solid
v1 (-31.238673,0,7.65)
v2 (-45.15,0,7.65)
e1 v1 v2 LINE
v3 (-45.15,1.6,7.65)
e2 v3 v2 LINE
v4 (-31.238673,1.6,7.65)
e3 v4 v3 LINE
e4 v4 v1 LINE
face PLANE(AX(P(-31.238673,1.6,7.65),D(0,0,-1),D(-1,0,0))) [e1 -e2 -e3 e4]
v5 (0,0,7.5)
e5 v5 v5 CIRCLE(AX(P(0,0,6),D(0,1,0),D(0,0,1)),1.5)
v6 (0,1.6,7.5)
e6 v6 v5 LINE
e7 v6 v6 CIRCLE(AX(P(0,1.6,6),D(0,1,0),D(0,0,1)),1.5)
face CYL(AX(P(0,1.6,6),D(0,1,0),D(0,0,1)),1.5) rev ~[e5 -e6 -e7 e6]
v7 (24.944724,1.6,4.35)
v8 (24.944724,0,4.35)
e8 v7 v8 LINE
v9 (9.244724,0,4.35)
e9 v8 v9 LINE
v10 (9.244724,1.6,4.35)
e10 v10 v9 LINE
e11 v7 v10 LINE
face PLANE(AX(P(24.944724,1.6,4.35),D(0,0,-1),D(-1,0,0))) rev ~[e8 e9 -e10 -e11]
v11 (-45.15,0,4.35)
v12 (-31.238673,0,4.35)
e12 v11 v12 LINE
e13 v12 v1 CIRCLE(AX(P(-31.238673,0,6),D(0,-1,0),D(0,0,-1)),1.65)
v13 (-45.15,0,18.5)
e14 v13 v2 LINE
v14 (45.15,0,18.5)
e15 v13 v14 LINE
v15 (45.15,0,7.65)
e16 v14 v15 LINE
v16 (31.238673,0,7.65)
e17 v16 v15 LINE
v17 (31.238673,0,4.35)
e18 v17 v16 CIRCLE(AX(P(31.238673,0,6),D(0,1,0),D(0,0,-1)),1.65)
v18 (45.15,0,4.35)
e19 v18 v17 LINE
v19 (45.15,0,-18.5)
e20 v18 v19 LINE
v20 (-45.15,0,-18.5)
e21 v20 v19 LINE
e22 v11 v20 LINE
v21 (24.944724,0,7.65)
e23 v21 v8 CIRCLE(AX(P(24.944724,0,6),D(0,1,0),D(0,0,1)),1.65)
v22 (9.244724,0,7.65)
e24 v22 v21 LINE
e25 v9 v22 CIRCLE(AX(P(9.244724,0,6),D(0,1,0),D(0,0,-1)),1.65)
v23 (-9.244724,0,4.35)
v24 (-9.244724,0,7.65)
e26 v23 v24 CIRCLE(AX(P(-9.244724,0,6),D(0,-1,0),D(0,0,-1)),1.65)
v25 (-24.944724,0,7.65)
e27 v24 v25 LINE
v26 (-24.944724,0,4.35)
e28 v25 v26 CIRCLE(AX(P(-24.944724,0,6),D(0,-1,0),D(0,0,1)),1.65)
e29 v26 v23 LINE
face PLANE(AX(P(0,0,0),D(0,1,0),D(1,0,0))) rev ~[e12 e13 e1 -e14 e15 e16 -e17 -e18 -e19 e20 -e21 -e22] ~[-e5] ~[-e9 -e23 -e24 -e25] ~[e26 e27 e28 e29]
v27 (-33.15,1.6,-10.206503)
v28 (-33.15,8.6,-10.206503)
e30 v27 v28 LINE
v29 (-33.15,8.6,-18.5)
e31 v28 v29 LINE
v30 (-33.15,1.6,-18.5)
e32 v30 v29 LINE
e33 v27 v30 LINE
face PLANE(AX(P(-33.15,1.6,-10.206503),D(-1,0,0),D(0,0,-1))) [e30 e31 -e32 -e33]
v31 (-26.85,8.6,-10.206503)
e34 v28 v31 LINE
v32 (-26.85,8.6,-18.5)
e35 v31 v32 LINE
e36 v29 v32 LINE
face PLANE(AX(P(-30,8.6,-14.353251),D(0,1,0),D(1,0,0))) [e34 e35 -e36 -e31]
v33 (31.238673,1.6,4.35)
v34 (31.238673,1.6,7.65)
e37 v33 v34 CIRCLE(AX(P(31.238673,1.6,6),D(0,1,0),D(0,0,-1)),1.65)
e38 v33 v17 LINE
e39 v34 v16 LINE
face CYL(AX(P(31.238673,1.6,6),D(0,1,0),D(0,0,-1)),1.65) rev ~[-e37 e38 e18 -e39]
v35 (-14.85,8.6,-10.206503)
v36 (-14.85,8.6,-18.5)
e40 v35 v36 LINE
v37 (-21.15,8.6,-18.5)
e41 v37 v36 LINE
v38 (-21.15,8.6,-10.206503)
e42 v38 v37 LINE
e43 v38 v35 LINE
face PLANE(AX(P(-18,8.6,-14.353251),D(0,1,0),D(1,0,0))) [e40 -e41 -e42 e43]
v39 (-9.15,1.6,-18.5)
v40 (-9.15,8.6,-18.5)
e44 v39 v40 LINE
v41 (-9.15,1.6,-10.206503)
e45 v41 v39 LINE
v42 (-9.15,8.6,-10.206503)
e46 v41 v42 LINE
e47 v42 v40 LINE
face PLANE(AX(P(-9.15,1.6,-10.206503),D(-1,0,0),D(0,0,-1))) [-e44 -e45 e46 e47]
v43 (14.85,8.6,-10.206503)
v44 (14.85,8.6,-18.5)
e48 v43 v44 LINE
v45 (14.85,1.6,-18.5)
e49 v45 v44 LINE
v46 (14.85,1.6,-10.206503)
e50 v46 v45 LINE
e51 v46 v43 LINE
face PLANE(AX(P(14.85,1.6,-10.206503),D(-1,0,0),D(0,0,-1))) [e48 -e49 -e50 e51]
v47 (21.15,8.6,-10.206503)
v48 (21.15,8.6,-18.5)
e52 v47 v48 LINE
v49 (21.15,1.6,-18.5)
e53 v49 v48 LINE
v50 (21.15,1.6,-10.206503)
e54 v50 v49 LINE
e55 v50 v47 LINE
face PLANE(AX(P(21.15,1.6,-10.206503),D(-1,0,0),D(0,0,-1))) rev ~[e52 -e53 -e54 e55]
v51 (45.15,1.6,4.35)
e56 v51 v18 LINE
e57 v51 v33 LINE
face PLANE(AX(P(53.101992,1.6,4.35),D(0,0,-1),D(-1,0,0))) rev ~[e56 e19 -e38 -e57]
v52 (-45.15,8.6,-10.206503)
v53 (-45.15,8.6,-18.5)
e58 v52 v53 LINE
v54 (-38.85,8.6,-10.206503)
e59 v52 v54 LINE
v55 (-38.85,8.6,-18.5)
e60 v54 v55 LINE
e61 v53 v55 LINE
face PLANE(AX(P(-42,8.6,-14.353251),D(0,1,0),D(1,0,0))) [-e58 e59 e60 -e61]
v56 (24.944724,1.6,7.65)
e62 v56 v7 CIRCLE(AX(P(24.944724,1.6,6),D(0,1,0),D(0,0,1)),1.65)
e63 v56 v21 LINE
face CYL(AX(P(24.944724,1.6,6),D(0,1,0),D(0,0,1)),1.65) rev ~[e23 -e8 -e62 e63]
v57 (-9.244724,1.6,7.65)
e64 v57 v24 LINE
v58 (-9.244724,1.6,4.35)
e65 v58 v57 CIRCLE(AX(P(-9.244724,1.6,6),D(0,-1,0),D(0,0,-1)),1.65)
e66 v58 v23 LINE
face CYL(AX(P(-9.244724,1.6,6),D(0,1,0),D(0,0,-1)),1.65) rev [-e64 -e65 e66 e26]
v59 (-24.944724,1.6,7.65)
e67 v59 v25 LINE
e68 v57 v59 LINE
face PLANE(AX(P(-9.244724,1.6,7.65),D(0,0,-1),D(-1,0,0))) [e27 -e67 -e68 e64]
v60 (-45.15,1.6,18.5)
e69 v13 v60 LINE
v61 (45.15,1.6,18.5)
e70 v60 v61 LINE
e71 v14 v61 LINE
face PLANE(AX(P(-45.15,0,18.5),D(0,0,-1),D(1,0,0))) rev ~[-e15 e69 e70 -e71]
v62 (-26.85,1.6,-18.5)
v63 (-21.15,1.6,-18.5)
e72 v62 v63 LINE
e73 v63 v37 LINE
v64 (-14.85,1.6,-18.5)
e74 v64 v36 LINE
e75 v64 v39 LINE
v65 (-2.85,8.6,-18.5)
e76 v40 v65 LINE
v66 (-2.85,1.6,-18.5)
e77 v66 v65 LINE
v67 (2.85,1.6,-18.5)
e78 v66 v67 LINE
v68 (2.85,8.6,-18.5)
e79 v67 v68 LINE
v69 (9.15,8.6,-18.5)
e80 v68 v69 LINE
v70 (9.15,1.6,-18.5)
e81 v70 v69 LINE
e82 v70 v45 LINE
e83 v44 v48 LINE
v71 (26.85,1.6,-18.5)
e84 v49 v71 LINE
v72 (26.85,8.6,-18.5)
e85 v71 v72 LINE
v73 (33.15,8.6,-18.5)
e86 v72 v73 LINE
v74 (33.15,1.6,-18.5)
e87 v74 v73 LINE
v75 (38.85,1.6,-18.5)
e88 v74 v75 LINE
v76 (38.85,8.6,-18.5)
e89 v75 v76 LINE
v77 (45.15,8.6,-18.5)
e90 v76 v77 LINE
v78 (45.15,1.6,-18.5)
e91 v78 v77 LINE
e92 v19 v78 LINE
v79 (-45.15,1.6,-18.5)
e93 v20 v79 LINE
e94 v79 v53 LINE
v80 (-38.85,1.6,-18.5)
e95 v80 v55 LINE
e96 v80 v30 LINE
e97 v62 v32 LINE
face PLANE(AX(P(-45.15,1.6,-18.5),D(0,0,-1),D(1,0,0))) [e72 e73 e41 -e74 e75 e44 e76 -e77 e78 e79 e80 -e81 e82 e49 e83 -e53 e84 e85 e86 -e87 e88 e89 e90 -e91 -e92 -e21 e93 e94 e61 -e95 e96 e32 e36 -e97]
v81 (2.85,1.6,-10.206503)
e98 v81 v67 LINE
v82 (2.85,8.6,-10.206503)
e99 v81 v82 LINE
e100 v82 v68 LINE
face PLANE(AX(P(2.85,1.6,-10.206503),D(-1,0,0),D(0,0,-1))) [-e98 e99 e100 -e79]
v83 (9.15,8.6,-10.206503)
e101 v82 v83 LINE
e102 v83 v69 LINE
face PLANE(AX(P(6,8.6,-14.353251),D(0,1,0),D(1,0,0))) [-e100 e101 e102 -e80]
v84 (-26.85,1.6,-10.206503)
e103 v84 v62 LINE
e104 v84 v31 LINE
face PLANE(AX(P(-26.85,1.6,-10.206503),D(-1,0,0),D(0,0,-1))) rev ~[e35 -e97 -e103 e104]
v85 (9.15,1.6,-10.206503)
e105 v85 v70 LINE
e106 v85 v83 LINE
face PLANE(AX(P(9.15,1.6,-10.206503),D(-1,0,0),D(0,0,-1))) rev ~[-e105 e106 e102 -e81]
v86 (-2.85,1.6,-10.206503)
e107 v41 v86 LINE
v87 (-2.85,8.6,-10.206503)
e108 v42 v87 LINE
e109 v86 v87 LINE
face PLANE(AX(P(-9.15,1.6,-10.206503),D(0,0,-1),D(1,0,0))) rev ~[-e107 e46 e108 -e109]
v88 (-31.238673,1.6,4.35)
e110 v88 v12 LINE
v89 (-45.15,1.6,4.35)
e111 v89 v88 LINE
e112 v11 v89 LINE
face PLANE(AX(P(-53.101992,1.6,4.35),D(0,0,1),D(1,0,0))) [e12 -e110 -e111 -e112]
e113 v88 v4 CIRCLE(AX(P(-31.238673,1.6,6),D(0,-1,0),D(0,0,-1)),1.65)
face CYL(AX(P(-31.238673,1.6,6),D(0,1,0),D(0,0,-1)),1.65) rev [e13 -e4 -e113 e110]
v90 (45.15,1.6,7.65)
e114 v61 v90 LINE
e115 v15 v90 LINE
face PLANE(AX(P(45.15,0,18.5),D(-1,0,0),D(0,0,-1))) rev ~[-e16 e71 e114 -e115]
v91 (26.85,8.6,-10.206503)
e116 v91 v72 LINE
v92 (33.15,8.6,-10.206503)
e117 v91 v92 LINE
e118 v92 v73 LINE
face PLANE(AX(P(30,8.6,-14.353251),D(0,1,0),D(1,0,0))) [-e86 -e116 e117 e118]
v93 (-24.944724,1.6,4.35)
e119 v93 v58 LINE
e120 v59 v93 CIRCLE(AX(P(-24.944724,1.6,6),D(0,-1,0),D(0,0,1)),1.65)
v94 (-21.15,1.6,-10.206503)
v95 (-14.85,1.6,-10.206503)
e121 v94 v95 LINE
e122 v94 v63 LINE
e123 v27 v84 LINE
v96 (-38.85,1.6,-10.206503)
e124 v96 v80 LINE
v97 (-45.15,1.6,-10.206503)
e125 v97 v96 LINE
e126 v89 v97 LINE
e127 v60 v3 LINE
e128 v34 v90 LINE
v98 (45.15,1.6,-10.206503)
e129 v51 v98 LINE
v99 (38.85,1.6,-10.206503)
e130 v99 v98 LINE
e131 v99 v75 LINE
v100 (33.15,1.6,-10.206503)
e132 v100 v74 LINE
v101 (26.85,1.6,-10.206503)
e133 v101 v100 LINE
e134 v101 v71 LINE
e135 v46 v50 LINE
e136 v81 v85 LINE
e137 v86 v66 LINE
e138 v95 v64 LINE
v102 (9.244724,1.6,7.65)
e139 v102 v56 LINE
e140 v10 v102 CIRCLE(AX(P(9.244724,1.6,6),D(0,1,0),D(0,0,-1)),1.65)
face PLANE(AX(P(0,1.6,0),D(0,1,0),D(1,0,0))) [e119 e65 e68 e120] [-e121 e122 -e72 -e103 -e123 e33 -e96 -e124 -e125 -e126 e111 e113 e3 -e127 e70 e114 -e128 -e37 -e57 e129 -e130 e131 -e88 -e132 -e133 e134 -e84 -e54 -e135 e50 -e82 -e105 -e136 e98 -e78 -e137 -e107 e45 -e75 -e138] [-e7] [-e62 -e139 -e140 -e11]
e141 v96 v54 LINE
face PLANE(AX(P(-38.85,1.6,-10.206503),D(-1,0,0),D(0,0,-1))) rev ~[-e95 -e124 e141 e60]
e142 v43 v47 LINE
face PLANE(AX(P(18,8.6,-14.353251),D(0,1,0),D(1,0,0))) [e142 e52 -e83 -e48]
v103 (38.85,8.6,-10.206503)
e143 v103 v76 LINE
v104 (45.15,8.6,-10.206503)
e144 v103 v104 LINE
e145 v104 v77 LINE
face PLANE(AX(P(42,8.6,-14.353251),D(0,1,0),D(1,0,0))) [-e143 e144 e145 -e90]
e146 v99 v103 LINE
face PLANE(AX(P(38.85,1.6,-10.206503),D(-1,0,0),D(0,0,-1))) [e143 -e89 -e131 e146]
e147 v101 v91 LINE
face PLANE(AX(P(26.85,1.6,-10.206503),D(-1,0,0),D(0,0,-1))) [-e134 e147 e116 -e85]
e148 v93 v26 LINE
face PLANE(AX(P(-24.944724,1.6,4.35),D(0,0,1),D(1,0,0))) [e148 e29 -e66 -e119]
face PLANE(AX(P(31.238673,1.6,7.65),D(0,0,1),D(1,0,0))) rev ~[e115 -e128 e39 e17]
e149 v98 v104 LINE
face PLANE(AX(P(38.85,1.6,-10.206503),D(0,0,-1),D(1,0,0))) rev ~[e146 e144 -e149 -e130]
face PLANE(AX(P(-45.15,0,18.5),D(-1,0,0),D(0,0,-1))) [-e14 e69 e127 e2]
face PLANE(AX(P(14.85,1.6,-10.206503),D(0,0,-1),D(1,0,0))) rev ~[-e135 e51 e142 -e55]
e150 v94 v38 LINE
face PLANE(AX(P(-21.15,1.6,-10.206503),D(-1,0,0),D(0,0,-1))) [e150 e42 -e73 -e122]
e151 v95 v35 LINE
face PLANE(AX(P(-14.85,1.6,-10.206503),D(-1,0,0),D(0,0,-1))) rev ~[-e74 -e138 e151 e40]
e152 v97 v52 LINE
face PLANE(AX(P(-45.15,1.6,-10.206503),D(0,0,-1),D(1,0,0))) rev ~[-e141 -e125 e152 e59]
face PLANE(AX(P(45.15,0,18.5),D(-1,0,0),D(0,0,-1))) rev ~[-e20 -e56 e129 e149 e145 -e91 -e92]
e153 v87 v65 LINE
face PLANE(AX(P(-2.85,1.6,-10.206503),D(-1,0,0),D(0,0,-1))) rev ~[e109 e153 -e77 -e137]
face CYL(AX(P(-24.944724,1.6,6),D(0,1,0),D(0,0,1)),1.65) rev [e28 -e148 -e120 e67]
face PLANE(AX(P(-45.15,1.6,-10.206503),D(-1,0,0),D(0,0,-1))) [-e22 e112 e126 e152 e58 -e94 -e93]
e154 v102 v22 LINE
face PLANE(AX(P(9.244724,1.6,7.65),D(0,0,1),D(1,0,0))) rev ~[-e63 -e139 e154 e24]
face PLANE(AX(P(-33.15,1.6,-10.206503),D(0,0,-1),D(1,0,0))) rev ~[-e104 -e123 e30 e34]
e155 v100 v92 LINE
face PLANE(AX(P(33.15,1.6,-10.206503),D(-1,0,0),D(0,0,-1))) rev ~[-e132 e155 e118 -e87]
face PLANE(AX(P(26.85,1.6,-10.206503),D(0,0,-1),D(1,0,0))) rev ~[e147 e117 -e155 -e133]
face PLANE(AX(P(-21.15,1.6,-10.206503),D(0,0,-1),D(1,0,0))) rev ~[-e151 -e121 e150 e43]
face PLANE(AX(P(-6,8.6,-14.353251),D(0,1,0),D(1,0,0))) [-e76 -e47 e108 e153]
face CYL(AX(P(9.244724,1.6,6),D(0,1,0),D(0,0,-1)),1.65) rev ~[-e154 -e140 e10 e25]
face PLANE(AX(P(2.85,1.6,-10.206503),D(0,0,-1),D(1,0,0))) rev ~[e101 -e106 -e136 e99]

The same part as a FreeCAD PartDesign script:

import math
import FreeCAD as App
import Part
import Sketcher

V = App.Vector

doc = App.newDocument("Part")
body = doc.addObject("PartDesign::Body", "Body")

sketch1 = body.newObject("Sketcher::SketchObject", "Sketch")
sketch1.AttachmentSupport = (doc.getObject("XZ_Plane"), [""])
sketch1.MapMode = "FlatFace"
sketch1.addGeometry([
    Part.LineSegment(V(-45, -18, 0), V(-45, 18, 0)),
    Part.LineSegment(V(-45, 18, 0), V(45, 18, 0)),
    Part.LineSegment(V(45, 18, 0), V(45, -18, 0)),
    Part.LineSegment(V(45, -18, 0), V(-45, -18, 0)),
], False)
sketch1.addConstraint([
    Sketcher.Constraint("Coincident", 0, 2, 1, 1),
    Sketcher.Constraint("Coincident", 1, 2, 2, 1),
    Sketcher.Constraint("Coincident", 2, 2, 3, 1),
    Sketcher.Constraint("Coincident", 3, 2, 0, 1),
    Sketcher.Constraint("Vertical", 0),
    Sketcher.Constraint("Horizontal", 1),
    Sketcher.Constraint("Vertical", 2),
    Sketcher.Constraint("Horizontal", 3),
    Sketcher.Constraint("Symmetric", 0, 2, 2, 2, -1, 1),
    Sketcher.Constraint("DistanceY", 0, 1, 0, 2, 37.0),
    Sketcher.Constraint("DistanceX", 1, 1, 1, 2, 90.3),
])
pad1 = body.newObject("PartDesign::Pad", "Pad")
pad1.Profile = sketch1
pad1.Length = 1.6
pad1.Reversed = True

sketch2 = body.newObject("Sketcher::SketchObject", "Sketch001")
sketch2.AttachmentSupport = (doc.getObject("XZ_Plane"), [""])
sketch2.MapMode = "FlatFace"
sketch2.AttachmentOffset = App.Placement(V(0, 0, -1.6), App.Rotation())
sketch2.addGeometry([
    Part.Circle(V(0, 6, 0), V(0, 0, 1), 1.5),
    Part.LineSegment(V(-53.1, 7.7, 0), V(-31.2, 7.7, 0)),
    Part.ArcOfCircle(Part.Circle(V(-31.2, 6, 0), V(0, 0, 1), 1.6), math.radians(-90), math.radians(90)),
    Part.LineSegment(V(-31.2, 4.3, 0), V(-53.1, 4.3, 0)),
    Part.ArcOfCircle(Part.Circle(V(-53.1, 6, 0), V(0, 0, 1), 1.6), math.radians(90), math.radians(270)),
    Part.LineSegment(V(-9.2, 4.3, 0), V(-24.9, 4.3, 0)),
    Part.ArcOfCircle(Part.Circle(V(-24.9, 6, 0), V(0, 0, 1), 1.6), math.radians(90), math.radians(270)),
    Part.LineSegment(V(-24.9, 7.7, 0), V(-9.2, 7.7, 0)),
    Part.ArcOfCircle(Part.Circle(V(-9.2, 6, 0), V(0, 0, 1), 1.6), math.radians(-90), math.radians(90)),
    Part.LineSegment(V(31.2, 7.7, 0), V(53.1, 7.7, 0)),
    Part.ArcOfCircle(Part.Circle(V(53.1, 6, 0), V(0, 0, 1), 1.6), math.radians(-90), math.radians(90)),
    Part.LineSegment(V(53.1, 4.3, 0), V(31.2, 4.3, 0)),
    Part.ArcOfCircle(Part.Circle(V(31.2, 6, 0), V(0, 0, 1), 1.6), math.radians(90), math.radians(270)),
    Part.LineSegment(V(24.9, 4.3, 0), V(9.2, 4.3, 0)),
    Part.ArcOfCircle(Part.Circle(V(9.2, 6, 0), V(0, 0, 1), 1.6), math.radians(90), math.radians(270)),
    Part.LineSegment(V(9.2, 7.7, 0), V(24.9, 7.7, 0)),
    Part.ArcOfCircle(Part.Circle(V(24.9, 6, 0), V(0, 0, 1), 1.6), math.radians(-90), math.radians(90)),
], False)
sketch2.addConstraint([
    Sketcher.Constraint("Tangent", 1, 2, 2, 2),
    Sketcher.Constraint("Tangent", 2, 1, 3, 1),
    Sketcher.Constraint("Tangent", 3, 2, 4, 2),
    Sketcher.Constraint("Tangent", 4, 1, 1, 1),
    Sketcher.Constraint("Tangent", 5, 2, 6, 2),
    Sketcher.Constraint("Tangent", 6, 1, 7, 1),
    Sketcher.Constraint("Tangent", 7, 2, 8, 2),
    Sketcher.Constraint("Tangent", 8, 1, 5, 1),
    Sketcher.Constraint("Tangent", 9, 2, 10, 2),
    Sketcher.Constraint("Tangent", 10, 1, 11, 1),
    Sketcher.Constraint("Tangent", 11, 2, 12, 2),
    Sketcher.Constraint("Tangent", 12, 1, 9, 1),
    Sketcher.Constraint("Tangent", 13, 2, 14, 2),
    Sketcher.Constraint("Tangent", 14, 1, 15, 1),
    Sketcher.Constraint("Tangent", 15, 2, 16, 2),
    Sketcher.Constraint("Tangent", 16, 1, 13, 1),
    Sketcher.Constraint("Horizontal", 1),
    Sketcher.Constraint("Horizontal", 3),
    Sketcher.Constraint("Horizontal", 5),
    Sketcher.Constraint("Horizontal", 7),
    Sketcher.Constraint("Horizontal", 9),
    Sketcher.Constraint("Horizontal", 11),
    Sketcher.Constraint("Horizontal", 13),
    Sketcher.Constraint("Horizontal", 15),
    Sketcher.Constraint("Equal", 4, 6),
    Sketcher.Constraint("Equal", 8, 10),
    Sketcher.Constraint("Equal", 12, 14),
    Sketcher.Constraint("Symmetric", 4, 3, 10, 3, -2),
    Sketcher.Constraint("Symmetric", 8, 3, 14, 3, -2),
    Sketcher.Constraint("PointOnObject", 0, 3, -2),
    Sketcher.Constraint("Horizontal", 0, 3, 2, 3),
    Sketcher.Constraint("Horizontal", 4, 3, 6, 3),
    Sketcher.Constraint("Equal", 3, 9),
    Sketcher.Constraint("Equal", 7, 13),
    Sketcher.Constraint("Diameter", 0, 3.0),
    Sketcher.Constraint("Radius", 2, 1.65),
    Sketcher.Constraint("DistanceX", 5, 2, 5, 1, 15.7),
    Sketcher.Constraint("DistanceY", -1, 1, 0, 3, 6.0),
    Sketcher.Constraint("DistanceX", 1, 1, 1, 2, 21.86332),
    Sketcher.Constraint("DistanceX", 2, 3, 6, 3, 6.293948),
    Sketcher.Constraint("DistanceX", 8, 3, 14, 3, 18.489448),
])
pocket1 = body.newObject("PartDesign::Pocket", "Pocket")
pocket1.Profile = sketch2
pocket1.Length = 1.6
pocket1.Reversed = True

sketch3 = body.newObject("Sketcher::SketchObject", "Sketch002")
sketch3.AttachmentSupport = (doc.getObject("XZ_Plane"), [""])
sketch3.MapMode = "FlatFace"
sketch3.AttachmentOffset = App.Placement(V(0, 0, -1.6), App.Rotation())
sketch3.addGeometry([
    Part.LineSegment(V(-33, -18, 0), V(-33, -10, 0)),
    Part.LineSegment(V(-33, -10, 0), V(-27, -10, 0)),
    Part.LineSegment(V(-27, -10, 0), V(-27, -18, 0)),
    Part.LineSegment(V(-27, -18, 0), V(-33, -18, 0)),
    Part.LineSegment(V(-45, -18, 0), V(-45, -10, 0)),
    Part.LineSegment(V(-45, -10, 0), V(-39, -10, 0)),
    Part.LineSegment(V(-39, -10, 0), V(-39, -18, 0)),
    Part.LineSegment(V(-39, -18, 0), V(-45, -18, 0)),
    Part.LineSegment(V(-21, -18, 0), V(-21, -10, 0)),
    Part.LineSegment(V(-21, -10, 0), V(-15, -10, 0)),
    Part.LineSegment(V(-15, -10, 0), V(-15, -18, 0)),
    Part.LineSegment(V(-15, -18, 0), V(-21, -18, 0)),
    Part.LineSegment(V(-9, -18, 0), V(-9, -10, 0)),
    Part.LineSegment(V(-9, -10, 0), V(-3, -10, 0)),
    Part.LineSegment(V(-3, -10, 0), V(-3, -18, 0)),
    Part.LineSegment(V(-3, -18, 0), V(-9, -18, 0)),
    Part.LineSegment(V(3, -18, 0), V(3, -10, 0)),
    Part.LineSegment(V(3, -10, 0), V(9, -10, 0)),
    Part.LineSegment(V(9, -10, 0), V(9, -18, 0)),
    Part.LineSegment(V(9, -18, 0), V(3, -18, 0)),
    Part.LineSegment(V(15, -18, 0), V(15, -10, 0)),
    Part.LineSegment(V(15, -10, 0), V(21, -10, 0)),
    Part.LineSegment(V(21, -10, 0), V(21, -18, 0)),
    Part.LineSegment(V(21, -18, 0), V(15, -18, 0)),
    Part.LineSegment(V(27, -18, 0), V(27, -10, 0)),
    Part.LineSegment(V(27, -10, 0), V(33, -10, 0)),
    Part.LineSegment(V(33, -10, 0), V(33, -18, 0)),
    Part.LineSegment(V(33, -18, 0), V(27, -18, 0)),
    Part.LineSegment(V(39, -18, 0), V(39, -10, 0)),
    Part.LineSegment(V(39, -10, 0), V(45, -10, 0)),
    Part.LineSegment(V(45, -10, 0), V(45, -18, 0)),
    Part.LineSegment(V(45, -18, 0), V(39, -18, 0)),
], False)
sketch3.addConstraint([
    Sketcher.Constraint("Coincident", 0, 2, 1, 1),
    Sketcher.Constraint("Coincident", 1, 2, 2, 1),
    Sketcher.Constraint("Coincident", 2, 2, 3, 1),
    Sketcher.Constraint("Coincident", 3, 2, 0, 1),
    Sketcher.Constraint("Coincident", 4, 2, 5, 1),
    Sketcher.Constraint("Coincident", 5, 2, 6, 1),
    Sketcher.Constraint("Coincident", 6, 2, 7, 1),
    Sketcher.Constraint("Coincident", 7, 2, 4, 1),
    Sketcher.Constraint("Coincident", 8, 2, 9, 1),
    Sketcher.Constraint("Coincident", 9, 2, 10, 1),
    Sketcher.Constraint("Coincident", 10, 2, 11, 1),
    Sketcher.Constraint("Coincident", 11, 2, 8, 1),
    Sketcher.Constraint("Coincident", 12, 2, 13, 1),
    Sketcher.Constraint("Coincident", 13, 2, 14, 1),
    Sketcher.Constraint("Coincident", 14, 2, 15, 1),
    Sketcher.Constraint("Coincident", 15, 2, 12, 1),
    Sketcher.Constraint("Coincident", 16, 2, 17, 1),
    Sketcher.Constraint("Coincident", 17, 2, 18, 1),
    Sketcher.Constraint("Coincident", 18, 2, 19, 1),
    Sketcher.Constraint("Coincident", 19, 2, 16, 1),
    Sketcher.Constraint("Coincident", 20, 2, 21, 1),
    Sketcher.Constraint("Coincident", 21, 2, 22, 1),
    Sketcher.Constraint("Coincident", 22, 2, 23, 1),
    Sketcher.Constraint("Coincident", 23, 2, 20, 1),
    Sketcher.Constraint("Coincident", 24, 2, 25, 1),
    Sketcher.Constraint("Coincident", 25, 2, 26, 1),
    Sketcher.Constraint("Coincident", 26, 2, 27, 1),
    Sketcher.Constraint("Coincident", 27, 2, 24, 1),
    Sketcher.Constraint("Coincident", 28, 2, 29, 1),
    Sketcher.Constraint("Coincident", 29, 2, 30, 1),
    Sketcher.Constraint("Coincident", 30, 2, 31, 1),
    Sketcher.Constraint("Coincident", 31, 2, 28, 1),
    Sketcher.Constraint("Vertical", 0),
    Sketcher.Constraint("Horizontal", 1),
    Sketcher.Constraint("Vertical", 2),
    Sketcher.Constraint("Horizontal", 3),
    Sketcher.Constraint("Vertical", 4),
    Sketcher.Constraint("Horizontal", 5),
    Sketcher.Constraint("Vertical", 6),
    Sketcher.Constraint("Horizontal", 7),
    Sketcher.Constraint("Vertical", 8),
    Sketcher.Constraint("Horizontal", 9),
    Sketcher.Constraint("Vertical", 10),
    Sketcher.Constraint("Horizontal", 11),
    Sketcher.Constraint("Vertical", 12),
    Sketcher.Constraint("Horizontal", 13),
    Sketcher.Constraint("Vertical", 14),
    Sketcher.Constraint("Horizontal", 15),
    Sketcher.Constraint("Vertical", 16),
    Sketcher.Constraint("Horizontal", 17),
    Sketcher.Constraint("Vertical", 18),
    Sketcher.Constraint("Horizontal", 19),
    Sketcher.Constraint("Vertical", 20),
    Sketcher.Constraint("Horizontal", 21),
    Sketcher.Constraint("Vertical", 22),
    Sketcher.Constraint("Horizontal", 23),
    Sketcher.Constraint("Vertical", 24),
    Sketcher.Constraint("Horizontal", 25),
    Sketcher.Constraint("Vertical", 26),
    Sketcher.Constraint("Horizontal", 27),
    Sketcher.Constraint("Vertical", 28),
    Sketcher.Constraint("Horizontal", 29),
    Sketcher.Constraint("Vertical", 30),
    Sketcher.Constraint("Horizontal", 31),
    Sketcher.Constraint("Symmetric", 13, 2, 16, 2, -2),
    Sketcher.Constraint("Symmetric", 15, 2, 18, 2, -2),
    Sketcher.Constraint("Symmetric", 9, 2, 20, 2, -2),
    Sketcher.Constraint("Symmetric", 11, 2, 22, 2, -2),
    Sketcher.Constraint("Symmetric", 1, 2, 24, 2, -2),
    Sketcher.Constraint("Symmetric", 3, 2, 26, 2, -2),
    Sketcher.Constraint("Symmetric", 5, 2, 28, 2, -2),
    Sketcher.Constraint("Symmetric", 7, 2, 30, 2, -2),
    Sketcher.Constraint("Horizontal", 1, 2, 4, 2),
    Sketcher.Constraint("Horizontal", 3, 2, 6, 2),
    Sketcher.Constraint("Horizontal", 5, 2, 8, 2),
    Sketcher.Constraint("Horizontal", 7, 2, 10, 2),
    Sketcher.Constraint("Horizontal", 9, 2, 12, 2),
    Sketcher.Constraint("Horizontal", 11, 2, 14, 2),
    Sketcher.Constraint("Equal", 3, 5),
    Sketcher.Constraint("Equal", 7, 9),
    Sketcher.Constraint("Equal", 11, 13),
    Sketcher.Constraint("DistanceX", 1, 1, 1, 2, 6.3),
    Sketcher.Constraint("DistanceX", 4, 2, 0, 2, 12.0),
    Sketcher.Constraint("DistanceX", 0, 2, 8, 2, 12.0),
    Sketcher.Constraint("DistanceX", 8, 2, 12, 2, 12.0),
    Sketcher.Constraint("DistanceX", 12, 2, 16, 2, 12.0),
    Sketcher.Constraint("DistanceY", 2, 2, -1, 1, 18.5),
    Sketcher.Constraint("DistanceY", 0, 1, 0, 2, 8.293497),
])
pad2 = body.newObject("PartDesign::Pad", "Pad001")
pad2.Profile = sketch3
pad2.Length = 7
pad2.Reversed = True

doc.recompute()
